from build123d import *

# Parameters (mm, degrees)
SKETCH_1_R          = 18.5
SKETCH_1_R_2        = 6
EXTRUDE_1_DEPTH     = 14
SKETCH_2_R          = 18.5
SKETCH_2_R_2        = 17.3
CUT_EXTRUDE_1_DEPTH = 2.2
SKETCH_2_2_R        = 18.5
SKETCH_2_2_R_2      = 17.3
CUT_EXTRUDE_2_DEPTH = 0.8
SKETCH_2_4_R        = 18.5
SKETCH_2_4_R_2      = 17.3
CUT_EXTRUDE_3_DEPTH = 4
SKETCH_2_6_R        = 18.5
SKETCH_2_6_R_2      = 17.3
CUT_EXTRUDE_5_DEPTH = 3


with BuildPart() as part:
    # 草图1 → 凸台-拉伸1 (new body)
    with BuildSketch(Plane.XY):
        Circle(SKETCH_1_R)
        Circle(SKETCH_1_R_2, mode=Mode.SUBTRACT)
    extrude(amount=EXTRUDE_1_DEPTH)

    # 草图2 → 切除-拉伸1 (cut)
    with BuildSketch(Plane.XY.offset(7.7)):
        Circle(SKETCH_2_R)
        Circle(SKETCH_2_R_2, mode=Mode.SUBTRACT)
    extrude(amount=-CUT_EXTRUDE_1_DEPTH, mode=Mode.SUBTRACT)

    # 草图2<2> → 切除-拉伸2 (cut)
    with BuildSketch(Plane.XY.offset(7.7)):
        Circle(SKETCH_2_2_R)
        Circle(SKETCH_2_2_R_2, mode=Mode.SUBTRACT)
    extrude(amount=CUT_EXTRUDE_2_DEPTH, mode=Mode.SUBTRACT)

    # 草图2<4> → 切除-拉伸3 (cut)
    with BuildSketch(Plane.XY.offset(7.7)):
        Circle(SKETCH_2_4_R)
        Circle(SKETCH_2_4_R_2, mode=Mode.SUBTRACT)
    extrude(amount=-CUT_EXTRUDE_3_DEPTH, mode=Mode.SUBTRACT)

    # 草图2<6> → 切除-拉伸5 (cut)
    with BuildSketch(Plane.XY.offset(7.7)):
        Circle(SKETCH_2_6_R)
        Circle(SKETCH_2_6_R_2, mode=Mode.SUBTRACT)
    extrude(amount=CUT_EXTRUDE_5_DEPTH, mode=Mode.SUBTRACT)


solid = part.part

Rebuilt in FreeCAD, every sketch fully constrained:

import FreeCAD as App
import Part
import Sketcher
from FreeCAD import Vector

doc = App.newDocument("Part")
body = doc.addObject("PartDesign::Body", "Body")

sketch1 = body.newObject("Sketcher::SketchObject", "Sketch")
sketch1.AttachmentSupport = (doc.getObject("XY_Plane"), [""])
sketch1.MapMode = "FlatFace"
sketch1.addGeometry([
    Part.Circle(Vector(0, 0, 0), Vector(0, 0, 1), 18),
    Part.Circle(Vector(0, 0, 0), Vector(0, 0, 1), 6),
], False)
sketch1.addConstraint([
    Sketcher.Constraint("Coincident", 0, 3, -1, 1),
    Sketcher.Constraint("Coincident", 1, 3, -1, 1),
    Sketcher.Constraint("Diameter", 0, 37.0),
    Sketcher.Constraint("Diameter", 1, 12.0),
])
pad1 = body.newObject("PartDesign::Pad", "Pad")
pad1.Profile = sketch1
pad1.Length = 14

sketch2 = body.newObject("Sketcher::SketchObject", "Sketch001")
sketch2.AttachmentSupport = (doc.getObject("XY_Plane"), [""])
sketch2.MapMode = "FlatFace"
sketch2.AttachmentOffset = App.Placement(Vector(0, 0, 7.7), App.Rotation())
sketch2.addGeometry([
    Part.Circle(Vector(0, 0, 0), Vector(0, 0, 1), 18),
    Part.Circle(Vector(0, 0, 0), Vector(0, 0, 1), 17),
], False)
sketch2.addConstraint([
    Sketcher.Constraint("Coincident", 0, 3, -1, 1),
    Sketcher.Constraint("Coincident", 1, 3, -1, 1),
    Sketcher.Constraint("Diameter", 0, 37.0),
    Sketcher.Constraint("Diameter", 1, 34.6),
])
pocket1 = body.newObject("PartDesign::Pocket", "Pocket")
pocket1.Profile = sketch2
pocket1.Length = 2.2

sketch3 = body.newObject("Sketcher::SketchObject", "Sketch002")
sketch3.AttachmentSupport = (doc.getObject("XY_Plane"), [""])
sketch3.MapMode = "FlatFace"
sketch3.AttachmentOffset = App.Placement(Vector(0, 0, 7.7), App.Rotation())
sketch3.addGeometry([
    Part.Circle(Vector(0, 0, 0), Vector(0, 0, 1), 18),
    Part.Circle(Vector(0, 0, 0), Vector(0, 0, 1), 17),
], False)
sketch3.addConstraint([
    Sketcher.Constraint("Coincident", 0, 3, -1, 1),
    Sketcher.Constraint("Coincident", 1, 3, -1, 1),
    Sketcher.Constraint("Diameter", 0, 37.0),
    Sketcher.Constraint("Diameter", 1, 34.6),
])
pocket2 = body.newObject("PartDesign::Pocket", "Pocket001")
pocket2.Profile = sketch3
pocket2.Length = 0.8
pocket2.Reversed = True

sketch4 = body.newObject("Sketcher::SketchObject", "Sketch003")
sketch4.AttachmentSupport = (doc.getObject("XY_Plane"), [""])
sketch4.MapMode = "FlatFace"
sketch4.AttachmentOffset = App.Placement(Vector(0, 0, 7.7), App.Rotation())
sketch4.addGeometry([
    Part.Circle(Vector(0, 0, 0), Vector(0, 0, 1), 18),
    Part.Circle(Vector(0, 0, 0), Vector(0, 0, 1), 17),
], False)
sketch4.addConstraint([
    Sketcher.Constraint("Coincident", 0, 3, -1, 1),
    Sketcher.Constraint("Coincident", 1, 3, -1, 1),
    Sketcher.Constraint("Diameter", 0, 37.0),
    Sketcher.Constraint("Diameter", 1, 34.6),
])
pocket3 = body.newObject("PartDesign::Pocket", "Pocket002")
pocket3.Profile = sketch4
pocket3.Length = 4

sketch5 = body.newObject("Sketcher::SketchObject", "Sketch004")
sketch5.AttachmentSupport = (doc.getObject("XY_Plane"), [""])
sketch5.MapMode = "FlatFace"
sketch5.AttachmentOffset = App.Placement(Vector(0, 0, 7.7), App.Rotation())
sketch5.addGeometry([
    Part.Circle(Vector(0, 0, 0), Vector(0, 0, 1), 18),
    Part.Circle(Vector(0, 0, 0), Vector(0, 0, 1), 17),
], False)
sketch5.addConstraint([
    Sketcher.Constraint("Coincident", 0, 3, -1, 1),
    Sketcher.Constraint("Coincident", 1, 3, -1, 1),
    Sketcher.Constraint("Diameter", 0, 37.0),
    Sketcher.Constraint("Diameter", 1, 34.6),
])
pocket4 = body.newObject("PartDesign::Pocket", "Pocket003")
pocket4.Profile = sketch5
pocket4.Length = 3
pocket4.Reversed = True

doc.recompute()
